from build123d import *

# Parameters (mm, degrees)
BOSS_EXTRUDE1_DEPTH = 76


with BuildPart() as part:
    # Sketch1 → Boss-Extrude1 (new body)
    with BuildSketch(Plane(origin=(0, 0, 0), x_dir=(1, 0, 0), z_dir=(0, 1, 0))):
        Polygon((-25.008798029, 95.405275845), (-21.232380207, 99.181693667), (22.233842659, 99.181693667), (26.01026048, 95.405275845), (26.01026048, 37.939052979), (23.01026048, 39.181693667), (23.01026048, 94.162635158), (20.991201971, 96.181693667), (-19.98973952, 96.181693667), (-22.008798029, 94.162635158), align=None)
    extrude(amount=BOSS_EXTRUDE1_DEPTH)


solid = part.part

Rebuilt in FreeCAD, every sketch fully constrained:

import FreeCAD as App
import Part
import Sketcher
from FreeCAD import Vector
Q = App.Units.Quantity


def add_polygon(sketch, points):
    """Adds a closed chain of lines whose ends are joined by coincident constraints."""
    first, n = sketch.GeometryCount, len(points)
    for a, b in zip(points, points[1:] + points[:1]):
        sketch.addGeometry(Part.LineSegment(App.Vector(*a, 0), App.Vector(*b, 0)), False)
    for i in range(n):
        sketch.addConstraint(Sketcher.Constraint("Coincident", first + i, 2, first + (i + 1) % n, 1))

doc = App.newDocument("Part")
params = doc.addObject("Spreadsheet::Sheet", "Params")
for row, (alias, value) in enumerate([
    ("pad1_length", "76 mm"),
], start=1):
    params.set(f"A{row}", alias)
    params.set(f"B{row}", "=" + value)
    params.setAlias(f"B{row}", alias)

body = doc.addObject("PartDesign::Body", "Body")

# Sketch on XZ plane
sketch1 = body.newObject("Sketcher::SketchObject", "Sketch")
sketch1.AttachmentSupport = (doc.getObject("XZ_Plane"), [""])
sketch1.MapMode = "FlatFace"
add_polygon(sketch1, [(-21.23238, -99.181694), (-25.008798, -95.405276), (-22.008798, -94.162635), (-19.98974, -96.181694), (20.991202, -96.181694), (23.01026, -94.162635), (23.01026, -39.181694), (26.01026, -37.939053), (26.01026, -95.405276), (22.233843, -99.181694)])  # lines 0-9
sketch1.addConstraint(Sketcher.Constraint("Horizontal", 3))
sketch1.addConstraint(Sketcher.Constraint("Vertical", 5))
sketch1.addConstraint(Sketcher.Constraint("Vertical", 7))
sketch1.addConstraint(Sketcher.Constraint("Horizontal", 9))
sketch1.addConstraint(Sketcher.Constraint("Parallel", 0, 2))
sketch1.addConstraint(Sketcher.Constraint("Perpendicular", 2, 4))
sketch1.addConstraint(Sketcher.Constraint("Parallel", 1, 6))
sketch1.addConstraint(Sketcher.Constraint("Parallel", 4, 8))
sketch1.addConstraint(Sketcher.Constraint("Horizontal", 1, 2, 4, 2))
sketch1.addConstraint(Sketcher.Constraint("Horizontal", 0, 2, 7, 2))
sketch1.addConstraint(Sketcher.Constraint("Equal", 2, 4))
sketch1.addConstraint(Sketcher.Constraint("Equal", 1, 6))
sketch1.addConstraint(Sketcher.Constraint("Angle", 1, Q("22.5 deg")))
sketch1.addConstraint(Sketcher.Constraint("DistanceX", 0, 2, 1, 2, Q("3 mm")))
sketch1.addConstraint(Sketcher.Constraint("DistanceX", 1, 2, 3, 2, Q("43 mm")))
sketch1.addConstraint(Sketcher.Constraint("DistanceY", 3, 2, 5, 2, Q("57 mm")))
sketch1.addConstraint(Sketcher.Constraint("DistanceY", 8, 2, 3, 2, Q("3 mm")))
sketch1.addConstraint(Sketcher.Constraint("DistanceX", 3, 1, 3, 2, Q("40.980941 mm")))
sketch1.addConstraint(Sketcher.Constraint("DistanceX", 0, 2, -1, 1, Q("25.008798 mm")))
sketch1.addConstraint(Sketcher.Constraint("DistanceY", 0, 2, -1, 1, Q("95.405276 mm")))
pad1 = body.newObject("PartDesign::Pad", "Pad")
pad1.Profile = sketch1
pad1.setExpression("Length", "Params.pad1_length")
pad1.Reversed = True

doc.recompute()
